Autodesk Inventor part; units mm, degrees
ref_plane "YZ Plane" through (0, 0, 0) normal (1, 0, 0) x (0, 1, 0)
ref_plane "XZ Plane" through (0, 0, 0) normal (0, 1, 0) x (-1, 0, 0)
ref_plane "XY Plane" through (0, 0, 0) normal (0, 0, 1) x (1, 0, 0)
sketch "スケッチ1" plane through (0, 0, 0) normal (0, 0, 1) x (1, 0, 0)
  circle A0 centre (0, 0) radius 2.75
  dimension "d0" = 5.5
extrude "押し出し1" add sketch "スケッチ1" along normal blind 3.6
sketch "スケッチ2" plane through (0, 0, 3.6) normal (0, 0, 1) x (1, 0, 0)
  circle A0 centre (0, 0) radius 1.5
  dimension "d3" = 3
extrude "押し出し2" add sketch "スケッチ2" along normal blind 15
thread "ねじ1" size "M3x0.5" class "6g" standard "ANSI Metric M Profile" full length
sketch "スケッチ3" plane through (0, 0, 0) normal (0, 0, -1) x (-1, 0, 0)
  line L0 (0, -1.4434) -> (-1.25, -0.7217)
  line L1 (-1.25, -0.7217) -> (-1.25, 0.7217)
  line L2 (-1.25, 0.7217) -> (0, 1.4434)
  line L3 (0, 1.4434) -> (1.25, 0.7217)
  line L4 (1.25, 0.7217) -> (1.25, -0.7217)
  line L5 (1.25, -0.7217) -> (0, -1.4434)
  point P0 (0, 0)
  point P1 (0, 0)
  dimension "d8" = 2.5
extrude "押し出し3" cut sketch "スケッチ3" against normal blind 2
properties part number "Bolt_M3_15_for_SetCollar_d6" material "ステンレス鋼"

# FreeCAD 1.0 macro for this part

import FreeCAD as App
import Part
import Sketcher
Q = App.Units.Quantity

doc = App.newDocument("Part")
body = doc.addObject("PartDesign::Body", "Body")

sketch1 = body.newObject("Sketcher::SketchObject", "Sketch")
sketch1.AttachmentSupport = (doc.getObject("XY_Plane"), [""])
sketch1.MapMode = "FlatFace"
sketch1.addGeometry(Part.Circle(App.Vector(0, 0, 0), App.Vector(0, 0, 1), 2.8), False)
sketch1.addConstraint([
    Sketcher.Constraint("Coincident", 0, 3, -1, 1),
    Sketcher.Constraint("Diameter", 0, 5.5),
])
pad1 = body.newObject("PartDesign::Pad", "Pad")
pad1.Profile = sketch1
pad1.Length = 3.6

sketch2 = body.newObject("Sketcher::SketchObject", "Sketch001")
sketch2.AttachmentSupport = (doc.getObject("XY_Plane"), [""])
sketch2.MapMode = "FlatFace"
sketch2.AttachmentOffset = App.Placement(App.Vector(0, 0, 3.6), App.Rotation())
sketch2.addGeometry(Part.Circle(App.Vector(0, 0, 0), App.Vector(0, 0, 1), 1.5), False)
sketch2.addConstraint([
    Sketcher.Constraint("Coincident", 0, 3, -1, 1),
    Sketcher.Constraint("Diameter", 0, 3.0),
])
pad2 = body.newObject("PartDesign::Pad", "Pad001")
pad2.Profile = sketch2
pad2.Length = 15

sketch3 = body.newObject("Sketcher::SketchObject", "Sketch002")
sketch3.AttachmentSupport = (doc.getObject("XY_Plane"), [""])
sketch3.MapMode = "FlatFace"
sketch3.addGeometry([
    Part.LineSegment(App.Vector(1.2, -0.7, 0), App.Vector(0, -1.4, 0)),
    Part.LineSegment(App.Vector(0, -1.4, 0), App.Vector(-1.2, -0.7, 0)),
    Part.LineSegment(App.Vector(-1.2, -0.7, 0), App.Vector(-1.2, 0.7, 0)),
    Part.LineSegment(App.Vector(-1.2, 0.7, 0), App.Vector(0, 1.4, 0)),
    Part.LineSegment(App.Vector(0, 1.4, 0), App.Vector(1.2, 0.7, 0)),
    Part.LineSegment(App.Vector(1.2, 0.7, 0), App.Vector(1.2, -0.7, 0)),
], False)
sketch3.addConstraint([
    Sketcher.Constraint("Coincident", 0, 2, 1, 1),
    Sketcher.Constraint("Coincident", 1, 2, 2, 1),
    Sketcher.Constraint("Coincident", 2, 2, 3, 1),
    Sketcher.Constraint("Coincident", 3, 2, 4, 1),
    Sketcher.Constraint("Coincident", 4, 2, 5, 1),
    Sketcher.Constraint("Coincident", 5, 2, 0, 1),
    Sketcher.Constraint("Vertical", 2),
    Sketcher.Constraint("Vertical", 5),
    Sketcher.Constraint("Symmetric", 0, 2, 3, 2, -1, 1),
    Sketcher.Constraint("Symmetric", 1, 2, 4, 2, -1, 1),
    Sketcher.Constraint("PointOnObject", 0, 2, -2),
    Sketcher.Constraint("Parallel", 0, 3),
    Sketcher.Constraint("Horizontal", 2, 2, 4, 2),
    Sketcher.Constraint("DistanceX", 2, 2, 4, 2, 2.5),
    Sketcher.Constraint("Angle", 0, Q("-149.9996 deg")),
    Sketcher.Constraint("DistanceY", 2, 1, 2, 2, 1.4434),
])
pocket1 = body.newObject("PartDesign::Pocket", "Pocket")
pocket1.Profile = sketch3
pocket1.Length = 2
pocket1.Reversed = True

doc.recompute()
